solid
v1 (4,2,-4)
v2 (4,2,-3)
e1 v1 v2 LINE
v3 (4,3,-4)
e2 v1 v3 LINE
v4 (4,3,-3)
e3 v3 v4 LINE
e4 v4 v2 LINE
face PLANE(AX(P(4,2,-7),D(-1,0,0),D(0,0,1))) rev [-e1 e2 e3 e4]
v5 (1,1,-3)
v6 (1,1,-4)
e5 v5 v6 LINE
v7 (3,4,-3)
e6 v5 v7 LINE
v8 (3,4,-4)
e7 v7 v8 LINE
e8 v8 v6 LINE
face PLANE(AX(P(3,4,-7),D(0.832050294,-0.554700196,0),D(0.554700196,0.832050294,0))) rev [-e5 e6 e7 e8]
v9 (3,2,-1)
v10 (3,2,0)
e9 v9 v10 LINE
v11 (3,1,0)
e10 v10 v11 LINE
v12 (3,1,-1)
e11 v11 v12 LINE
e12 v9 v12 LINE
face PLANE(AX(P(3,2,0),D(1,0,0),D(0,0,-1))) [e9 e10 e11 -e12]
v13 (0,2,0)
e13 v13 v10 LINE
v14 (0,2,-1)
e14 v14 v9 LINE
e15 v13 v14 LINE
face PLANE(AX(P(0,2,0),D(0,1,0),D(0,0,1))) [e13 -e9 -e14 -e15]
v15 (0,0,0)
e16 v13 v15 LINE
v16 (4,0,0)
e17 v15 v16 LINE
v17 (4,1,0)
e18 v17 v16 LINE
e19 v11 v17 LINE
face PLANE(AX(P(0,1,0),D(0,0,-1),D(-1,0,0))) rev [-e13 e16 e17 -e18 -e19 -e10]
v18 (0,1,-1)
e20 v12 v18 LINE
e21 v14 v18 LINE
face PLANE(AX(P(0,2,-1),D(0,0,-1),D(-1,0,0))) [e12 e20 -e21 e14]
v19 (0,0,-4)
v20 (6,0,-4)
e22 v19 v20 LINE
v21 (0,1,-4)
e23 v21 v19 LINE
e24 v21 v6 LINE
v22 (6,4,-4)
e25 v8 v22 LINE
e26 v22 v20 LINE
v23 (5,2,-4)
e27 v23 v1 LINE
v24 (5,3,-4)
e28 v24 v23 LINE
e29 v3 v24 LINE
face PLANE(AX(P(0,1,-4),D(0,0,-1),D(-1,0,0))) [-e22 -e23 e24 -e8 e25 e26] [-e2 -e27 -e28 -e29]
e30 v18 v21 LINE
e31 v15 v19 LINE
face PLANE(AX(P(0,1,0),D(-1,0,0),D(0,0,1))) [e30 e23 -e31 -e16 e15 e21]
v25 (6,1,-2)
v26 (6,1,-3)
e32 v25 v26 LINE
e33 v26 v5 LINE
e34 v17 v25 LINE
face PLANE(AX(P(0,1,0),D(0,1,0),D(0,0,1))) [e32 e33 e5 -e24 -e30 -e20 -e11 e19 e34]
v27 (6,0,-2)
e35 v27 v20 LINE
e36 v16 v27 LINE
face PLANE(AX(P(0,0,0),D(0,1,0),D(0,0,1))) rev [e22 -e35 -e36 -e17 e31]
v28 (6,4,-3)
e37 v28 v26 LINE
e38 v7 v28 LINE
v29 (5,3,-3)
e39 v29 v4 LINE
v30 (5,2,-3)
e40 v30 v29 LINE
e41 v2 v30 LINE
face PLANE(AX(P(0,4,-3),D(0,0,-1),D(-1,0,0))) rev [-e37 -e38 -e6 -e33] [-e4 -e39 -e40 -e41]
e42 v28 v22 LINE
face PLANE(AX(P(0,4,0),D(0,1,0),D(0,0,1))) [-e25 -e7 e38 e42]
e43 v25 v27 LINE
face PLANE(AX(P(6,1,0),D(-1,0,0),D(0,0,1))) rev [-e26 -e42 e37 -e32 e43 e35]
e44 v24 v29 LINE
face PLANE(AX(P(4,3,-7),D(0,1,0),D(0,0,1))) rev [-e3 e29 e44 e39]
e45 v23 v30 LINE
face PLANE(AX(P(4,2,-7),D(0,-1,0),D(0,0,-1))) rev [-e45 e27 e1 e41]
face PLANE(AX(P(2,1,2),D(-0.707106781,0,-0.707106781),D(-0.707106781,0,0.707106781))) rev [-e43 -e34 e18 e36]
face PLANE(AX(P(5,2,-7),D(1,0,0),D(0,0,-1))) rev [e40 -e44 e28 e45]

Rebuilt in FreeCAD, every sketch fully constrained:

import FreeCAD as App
import Part
import Sketcher

doc = App.newDocument("Part")
body = doc.addObject("PartDesign::Body", "Body")

# Sketch on XZ plane
sketch1 = doc.addObject("Sketcher::SketchObject", "Sketch")
body.addObject(sketch1)
sketch1.AttachmentSupport = (doc.XZ_Plane, [""])
sketch1.MapMode = "FlatFace"
sketch1.addGeometry(Part.LineSegment(App.Vector(6, -4, 0), App.Vector(0, -4, 0)), False)
sketch1.addGeometry(Part.LineSegment(App.Vector(0, -4, 0), App.Vector(0, 0, 0)), False)
sketch1.addGeometry(Part.LineSegment(App.Vector(0, 0, 0), App.Vector(4, 0, 0)), False)
sketch1.addGeometry(Part.LineSegment(App.Vector(4, 0, 0), App.Vector(6, -2, 0)), False)
sketch1.addGeometry(Part.LineSegment(App.Vector(6, -2, 0), App.Vector(6, -4, 0)), False)
sketch1.addConstraint(Sketcher.Constraint("Coincident", 0, 2, 1, 1))
sketch1.addConstraint(Sketcher.Constraint("Coincident", 1, 2, 2, 1))
sketch1.addConstraint(Sketcher.Constraint("Coincident", 2, 2, 3, 1))
sketch1.addConstraint(Sketcher.Constraint("Coincident", 3, 2, 4, 1))
sketch1.addConstraint(Sketcher.Constraint("Coincident", 4, 2, 0, 1))
sketch1.addConstraint(Sketcher.Constraint("Horizontal", 0))
sketch1.addConstraint(Sketcher.Constraint("Vertical", 1))
sketch1.addConstraint(Sketcher.Constraint("Horizontal", 2))
sketch1.addConstraint(Sketcher.Constraint("Vertical", 4))
sketch1.addConstraint(Sketcher.Constraint("Coincident", 1, 2, -1, 1))
sketch1.addConstraint(Sketcher.Constraint("Equal", 2, 1))
sketch1.addConstraint(Sketcher.Constraint("DistanceX", 0, 2, 0, 1, 6.0))
sketch1.addConstraint(Sketcher.Constraint("DistanceX", 2, 1, 2, 2, 4.0))
sketch1.addConstraint(Sketcher.Constraint("DistanceY", 4, 2, 4, 1, 2.0))
pad1 = doc.addObject("PartDesign::Pad", "Pad")
body.addObject(pad1)
pad1.Profile = sketch1
pad1.Length = 1
pad1.Reversed = True

# Sketch on XZ plane
sketch2 = doc.addObject("Sketcher::SketchObject", "Sketch001")
body.addObject(sketch2)
sketch2.AttachmentSupport = (doc.XZ_Plane, [""])
sketch2.MapMode = "FlatFace"
sketch2.addGeometry(Part.LineSegment(App.Vector(0, -1, 0), App.Vector(0, 0, 0)), False)
sketch2.addGeometry(Part.LineSegment(App.Vector(0, 0, 0), App.Vector(3, 0, 0)), False)
sketch2.addGeometry(Part.LineSegment(App.Vector(3, 0, 0), App.Vector(3, -1, 0)), False)
sketch2.addGeometry(Part.LineSegment(App.Vector(3, -1, 0), App.Vector(0, -1, 0)), False)
sketch2.addConstraint(Sketcher.Constraint("Coincident", 0, 2, 1, 1))
sketch2.addConstraint(Sketcher.Constraint("Coincident", 1, 2, 2, 1))
sketch2.addConstraint(Sketcher.Constraint("Coincident", 2, 2, 3, 1))
sketch2.addConstraint(Sketcher.Constraint("Coincident", 3, 2, 0, 1))
sketch2.addConstraint(Sketcher.Constraint("Vertical", 0))
sketch2.addConstraint(Sketcher.Constraint("Horizontal", 1))
sketch2.addConstraint(Sketcher.Constraint("Vertical", 2))
sketch2.addConstraint(Sketcher.Constraint("Horizontal", 3))
sketch2.addConstraint(Sketcher.Constraint("Coincident", 0, 2, -1, 1))
sketch2.addConstraint(Sketcher.Constraint("DistanceX", 1, 1, 1, 2, 3.0))
sketch2.addConstraint(Sketcher.Constraint("DistanceY", 0, 1, 0, 2, 1.0))
pad2 = doc.addObject("PartDesign::Pad", "Pad001")
body.addObject(pad2)
pad2.Profile = sketch2
pad2.Length = 2
pad2.Reversed = True

# Sketch on XZ plane
sketch3 = doc.addObject("Sketcher::SketchObject", "Sketch002")
body.addObject(sketch3)
sketch3.AttachmentSupport = (doc.XZ_Plane, [""])
sketch3.MapMode = "FlatFace"
sketch3.addGeometry(Part.LineSegment(App.Vector(1, -4, 0), App.Vector(1, -3, 0)), False)
sketch3.addGeometry(Part.LineSegment(App.Vector(1, -3, 0), App.Vector(6, -3, 0)), False)
sketch3.addGeometry(Part.LineSegment(App.Vector(6, -3, 0), App.Vector(6, -4, 0)), False)
sketch3.addGeometry(Part.LineSegment(App.Vector(6, -4, 0), App.Vector(1, -4, 0)), False)
sketch3.addConstraint(Sketcher.Constraint("Coincident", 0, 2, 1, 1))
sketch3.addConstraint(Sketcher.Constraint("Coincident", 1, 2, 2, 1))
sketch3.addConstraint(Sketcher.Constraint("Coincident", 2, 2, 3, 1))
sketch3.addConstraint(Sketcher.Constraint("Coincident", 3, 2, 0, 1))
sketch3.addConstraint(Sketcher.Constraint("Vertical", 0))
sketch3.addConstraint(Sketcher.Constraint("Horizontal", 1))
sketch3.addConstraint(Sketcher.Constraint("Vertical", 2))
sketch3.addConstraint(Sketcher.Constraint("Horizontal", 3))
sketch3.addConstraint(Sketcher.Constraint("DistanceX", 1, 1, 1, 2, 5.0))
sketch3.addConstraint(Sketcher.Constraint("DistanceY", 0, 1, 0, 2, 1.0))
sketch3.addConstraint(Sketcher.Constraint("DistanceX", -1, 1, 0, 2, 1.0))
sketch3.addConstraint(Sketcher.Constraint("DistanceY", 0, 2, -1, 1, 3.0))
pad3 = doc.addObject("PartDesign::Pad", "Pad002")
body.addObject(pad3)
pad3.Profile = sketch3
pad3.Length = 4
pad3.Reversed = True

# Sketch on XY plane
sketch4 = doc.addObject("Sketcher::SketchObject", "Sketch003")
body.addObject(sketch4)
sketch4.AttachmentSupport = (doc.XY_Plane, [""])
sketch4.MapMode = "FlatFace"
sketch4.AttachmentOffset = App.Placement(App.Vector(0, 0, -3), App.Rotation())
sketch4.addGeometry(Part.LineSegment(App.Vector(4, 3, 0), App.Vector(4, 2, 0)), False)
sketch4.addGeometry(Part.LineSegment(App.Vector(4, 2, 0), App.Vector(5, 2, 0)), False)
sketch4.addGeometry(Part.LineSegment(App.Vector(5, 2, 0), App.Vector(5, 3, 0)), False)
sketch4.addGeometry(Part.LineSegment(App.Vector(5, 3, 0), App.Vector(4, 3, 0)), False)
sketch4.addGeometry(Part.LineSegment(App.Vector(3, 4, 0), App.Vector(1, 4, 0)), False)
sketch4.addGeometry(Part.LineSegment(App.Vector(1, 4, 0), App.Vector(1, 1, 0)), False)
sketch4.addGeometry(Part.LineSegment(App.Vector(1, 1, 0), App.Vector(3, 4, 0)), False)
sketch4.addConstraint(Sketcher.Constraint("Coincident", 0, 2, 1, 1))
sketch4.addConstraint(Sketcher.Constraint("Coincident", 1, 2, 2, 1))
sketch4.addConstraint(Sketcher.Constraint("Coincident", 2, 2, 3, 1))
sketch4.addConstraint(Sketcher.Constraint("Coincident", 3, 2, 0, 1))
sketch4.addConstraint(Sketcher.Constraint("Coincident", 4, 2, 5, 1))
sketch4.addConstraint(Sketcher.Constraint("Coincident", 5, 2, 6, 1))
sketch4.addConstraint(Sketcher.Constraint("Coincident", 6, 2, 4, 1))
sketch4.addConstraint(Sketcher.Constraint("Vertical", 0))
sketch4.addConstraint(Sketcher.Constraint("Horizontal", 1))
sketch4.addConstraint(Sketcher.Constraint("Vertical", 2))
sketch4.addConstraint(Sketcher.Constraint("Horizontal", 3))
sketch4.addConstraint(Sketcher.Constraint("Horizontal", 4))
sketch4.addConstraint(Sketcher.Constraint("Vertical", 5))
sketch4.addConstraint(Sketcher.Constraint("Equal", 3, 0))
sketch4.addConstraint(Sketcher.Constraint("DistanceX", 1, 1, 1, 2, 1.0))
sketch4.addConstraint(Sketcher.Constraint("DistanceX", 4, 2, 4, 1, 2.0))
sketch4.addConstraint(Sketcher.Constraint("DistanceY", 5, 2, 5, 1, 3.0))
sketch4.addConstraint(Sketcher.Constraint("DistanceX", -1, 1, 0, 2, 4.0))
sketch4.addConstraint(Sketcher.Constraint("DistanceY", -1, 1, 0, 2, 2.0))
sketch4.addConstraint(Sketcher.Constraint("DistanceX", -1, 1, 4, 2, 1.0))
sketch4.addConstraint(Sketcher.Constraint("DistanceY", -1, 1, 4, 2, 4.0))
pocket1 = doc.addObject("PartDesign::Pocket", "Pocket")
body.addObject(pocket1)
pocket1.Profile = sketch4
pocket1.Length = 4

doc.recompute()
